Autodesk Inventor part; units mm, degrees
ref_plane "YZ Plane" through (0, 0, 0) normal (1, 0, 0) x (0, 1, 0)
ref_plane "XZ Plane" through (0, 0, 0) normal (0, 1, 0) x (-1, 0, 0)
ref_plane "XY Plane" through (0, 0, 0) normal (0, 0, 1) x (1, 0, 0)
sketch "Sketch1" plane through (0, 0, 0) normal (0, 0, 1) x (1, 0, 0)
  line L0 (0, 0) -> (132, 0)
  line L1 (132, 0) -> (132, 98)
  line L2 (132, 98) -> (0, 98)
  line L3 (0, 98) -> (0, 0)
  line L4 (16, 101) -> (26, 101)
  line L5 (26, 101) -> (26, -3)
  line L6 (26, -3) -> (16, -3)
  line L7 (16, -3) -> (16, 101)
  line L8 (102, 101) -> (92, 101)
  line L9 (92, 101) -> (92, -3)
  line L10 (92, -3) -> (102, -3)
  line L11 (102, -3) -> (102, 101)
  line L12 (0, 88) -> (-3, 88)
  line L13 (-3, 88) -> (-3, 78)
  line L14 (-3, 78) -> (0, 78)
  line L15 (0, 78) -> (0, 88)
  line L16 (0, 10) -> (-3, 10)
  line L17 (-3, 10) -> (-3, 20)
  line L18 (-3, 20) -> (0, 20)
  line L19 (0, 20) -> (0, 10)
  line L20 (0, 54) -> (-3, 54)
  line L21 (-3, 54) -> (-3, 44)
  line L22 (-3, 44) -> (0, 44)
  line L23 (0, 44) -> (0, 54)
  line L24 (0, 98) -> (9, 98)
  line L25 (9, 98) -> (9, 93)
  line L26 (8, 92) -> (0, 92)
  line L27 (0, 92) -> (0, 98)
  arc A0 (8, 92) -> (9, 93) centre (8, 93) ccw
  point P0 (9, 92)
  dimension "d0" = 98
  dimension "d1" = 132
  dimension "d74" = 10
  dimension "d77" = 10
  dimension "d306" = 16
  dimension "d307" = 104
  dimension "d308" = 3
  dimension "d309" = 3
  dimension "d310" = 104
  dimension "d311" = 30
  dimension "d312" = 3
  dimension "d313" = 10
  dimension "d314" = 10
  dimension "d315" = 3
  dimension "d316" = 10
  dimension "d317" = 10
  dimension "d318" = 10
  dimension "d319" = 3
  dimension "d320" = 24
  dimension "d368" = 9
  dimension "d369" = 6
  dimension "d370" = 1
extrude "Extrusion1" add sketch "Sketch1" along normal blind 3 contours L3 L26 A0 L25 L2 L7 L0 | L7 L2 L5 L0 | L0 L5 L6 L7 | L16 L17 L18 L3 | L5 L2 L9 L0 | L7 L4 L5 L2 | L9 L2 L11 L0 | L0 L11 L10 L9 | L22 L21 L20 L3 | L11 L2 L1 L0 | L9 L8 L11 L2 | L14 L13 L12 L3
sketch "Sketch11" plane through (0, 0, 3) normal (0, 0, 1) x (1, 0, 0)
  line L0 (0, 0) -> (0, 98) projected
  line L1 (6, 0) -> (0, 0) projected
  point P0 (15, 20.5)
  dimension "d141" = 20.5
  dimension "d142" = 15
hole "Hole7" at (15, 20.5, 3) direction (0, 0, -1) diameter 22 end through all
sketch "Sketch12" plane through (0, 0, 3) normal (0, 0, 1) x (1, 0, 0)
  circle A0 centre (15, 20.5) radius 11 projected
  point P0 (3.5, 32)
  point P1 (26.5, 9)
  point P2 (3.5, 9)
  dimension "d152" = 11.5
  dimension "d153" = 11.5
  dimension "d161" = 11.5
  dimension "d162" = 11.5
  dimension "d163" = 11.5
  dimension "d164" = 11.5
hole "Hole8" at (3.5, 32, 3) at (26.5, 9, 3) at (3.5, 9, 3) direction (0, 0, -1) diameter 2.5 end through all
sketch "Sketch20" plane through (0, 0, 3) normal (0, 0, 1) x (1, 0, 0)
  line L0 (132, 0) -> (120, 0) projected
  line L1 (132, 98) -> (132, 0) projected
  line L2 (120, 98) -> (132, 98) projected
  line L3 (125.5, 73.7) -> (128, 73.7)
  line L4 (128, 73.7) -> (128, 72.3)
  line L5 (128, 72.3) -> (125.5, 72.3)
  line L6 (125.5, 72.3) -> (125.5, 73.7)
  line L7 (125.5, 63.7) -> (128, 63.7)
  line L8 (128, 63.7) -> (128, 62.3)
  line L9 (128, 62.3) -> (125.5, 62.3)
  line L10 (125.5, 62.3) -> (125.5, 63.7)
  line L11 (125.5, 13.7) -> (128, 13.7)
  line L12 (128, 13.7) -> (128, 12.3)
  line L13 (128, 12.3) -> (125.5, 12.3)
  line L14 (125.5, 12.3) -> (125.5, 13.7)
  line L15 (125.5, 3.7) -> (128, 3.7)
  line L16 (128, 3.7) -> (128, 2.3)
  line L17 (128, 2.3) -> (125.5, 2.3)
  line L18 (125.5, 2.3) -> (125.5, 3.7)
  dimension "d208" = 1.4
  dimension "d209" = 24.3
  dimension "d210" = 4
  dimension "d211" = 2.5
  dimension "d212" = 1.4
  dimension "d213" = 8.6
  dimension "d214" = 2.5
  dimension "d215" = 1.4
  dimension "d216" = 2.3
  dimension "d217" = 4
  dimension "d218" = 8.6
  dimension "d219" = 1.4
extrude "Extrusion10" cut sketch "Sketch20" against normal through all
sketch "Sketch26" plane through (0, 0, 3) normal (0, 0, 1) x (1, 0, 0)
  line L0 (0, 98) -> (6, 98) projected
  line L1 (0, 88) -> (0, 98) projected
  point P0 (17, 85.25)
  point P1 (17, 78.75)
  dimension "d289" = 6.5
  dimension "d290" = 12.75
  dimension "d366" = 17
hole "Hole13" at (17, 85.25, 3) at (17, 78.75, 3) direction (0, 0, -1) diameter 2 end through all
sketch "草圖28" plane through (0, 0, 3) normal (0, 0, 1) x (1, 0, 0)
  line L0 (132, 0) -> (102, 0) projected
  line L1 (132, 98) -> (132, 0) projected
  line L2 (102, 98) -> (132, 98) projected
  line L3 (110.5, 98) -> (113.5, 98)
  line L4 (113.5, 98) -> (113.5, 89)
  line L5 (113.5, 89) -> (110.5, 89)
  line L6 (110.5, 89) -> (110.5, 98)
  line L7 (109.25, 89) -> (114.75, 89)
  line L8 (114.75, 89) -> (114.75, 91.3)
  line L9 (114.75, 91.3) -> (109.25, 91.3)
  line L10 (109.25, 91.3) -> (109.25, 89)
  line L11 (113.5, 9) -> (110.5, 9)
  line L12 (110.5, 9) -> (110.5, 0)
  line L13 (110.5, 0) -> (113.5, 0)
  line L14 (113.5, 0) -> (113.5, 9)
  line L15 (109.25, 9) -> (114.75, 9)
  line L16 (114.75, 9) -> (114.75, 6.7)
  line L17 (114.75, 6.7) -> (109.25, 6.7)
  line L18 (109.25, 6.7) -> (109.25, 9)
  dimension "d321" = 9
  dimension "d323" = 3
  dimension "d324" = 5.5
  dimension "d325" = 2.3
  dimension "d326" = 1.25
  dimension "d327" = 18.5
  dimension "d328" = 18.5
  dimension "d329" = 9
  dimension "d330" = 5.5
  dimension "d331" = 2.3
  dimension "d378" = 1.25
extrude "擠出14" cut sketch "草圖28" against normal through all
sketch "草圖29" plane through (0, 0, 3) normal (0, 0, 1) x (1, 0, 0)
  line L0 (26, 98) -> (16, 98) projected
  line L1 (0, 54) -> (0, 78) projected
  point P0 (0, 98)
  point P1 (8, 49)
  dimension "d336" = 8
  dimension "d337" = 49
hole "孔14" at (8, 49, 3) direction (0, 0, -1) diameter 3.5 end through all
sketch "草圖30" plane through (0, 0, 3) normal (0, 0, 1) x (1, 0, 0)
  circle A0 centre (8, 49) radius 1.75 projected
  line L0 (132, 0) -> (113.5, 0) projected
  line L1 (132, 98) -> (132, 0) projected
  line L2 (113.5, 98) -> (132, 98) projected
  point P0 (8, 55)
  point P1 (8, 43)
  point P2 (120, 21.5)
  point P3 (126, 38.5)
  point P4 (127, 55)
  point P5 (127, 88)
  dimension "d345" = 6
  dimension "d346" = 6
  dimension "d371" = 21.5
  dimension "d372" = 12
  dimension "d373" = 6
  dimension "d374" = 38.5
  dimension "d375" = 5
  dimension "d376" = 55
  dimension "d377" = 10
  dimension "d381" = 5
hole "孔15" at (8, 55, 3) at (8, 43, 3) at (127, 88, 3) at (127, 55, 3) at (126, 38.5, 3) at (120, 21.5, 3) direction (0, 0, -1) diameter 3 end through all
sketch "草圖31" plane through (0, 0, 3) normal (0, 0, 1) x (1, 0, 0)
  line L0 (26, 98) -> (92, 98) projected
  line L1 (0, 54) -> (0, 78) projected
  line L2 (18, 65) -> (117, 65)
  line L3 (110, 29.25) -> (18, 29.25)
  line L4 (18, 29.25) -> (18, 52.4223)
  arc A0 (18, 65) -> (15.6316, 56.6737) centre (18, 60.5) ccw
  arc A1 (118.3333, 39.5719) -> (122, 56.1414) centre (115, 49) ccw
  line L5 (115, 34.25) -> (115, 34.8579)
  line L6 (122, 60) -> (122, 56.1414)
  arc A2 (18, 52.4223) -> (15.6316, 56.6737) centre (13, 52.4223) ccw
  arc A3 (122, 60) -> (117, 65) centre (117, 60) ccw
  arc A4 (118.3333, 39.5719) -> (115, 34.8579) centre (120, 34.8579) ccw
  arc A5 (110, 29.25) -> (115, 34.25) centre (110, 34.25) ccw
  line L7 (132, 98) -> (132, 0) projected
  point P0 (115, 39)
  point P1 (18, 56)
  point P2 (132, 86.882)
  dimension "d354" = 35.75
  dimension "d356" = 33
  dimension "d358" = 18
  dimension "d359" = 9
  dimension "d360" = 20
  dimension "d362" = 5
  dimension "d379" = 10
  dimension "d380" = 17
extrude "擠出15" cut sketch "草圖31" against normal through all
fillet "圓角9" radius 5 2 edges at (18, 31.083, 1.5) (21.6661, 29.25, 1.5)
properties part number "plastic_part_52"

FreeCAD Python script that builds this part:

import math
import FreeCAD as App
import Part
import Sketcher

V = App.Vector


def edges_at(feature, points):
    """Names of the edges that pass closest to the given points."""
    edges = feature.Shape.Edges
    near = lambda p: min(range(len(edges)), key=lambda i: edges[i].distToShape(Part.Vertex(*p))[0])
    return sorted({f"Edge{near(p) + 1}" for p in points})

doc = App.newDocument("Part")
body = doc.addObject("PartDesign::Body", "Body")

# Sketch on XY plane
sketch1 = body.newObject("Sketcher::SketchObject", "Sketch")
sketch1.AttachmentSupport = (doc.getObject("XY_Plane"), [""])
sketch1.MapMode = "FlatFace"
sketch1.addGeometry([
    Part.LineSegment(V(0, 10, 0), V(0, 0, 0)),  # 0
    Part.LineSegment(V(0, 0, 0), V(16, 0, 0)),  # 1
    Part.LineSegment(V(16, 0, 0), V(16, -3, 0)),  # 2
    Part.LineSegment(V(16, -3, 0), V(26, -3, 0)),  # 3
    Part.LineSegment(V(26, -3, 0), V(26, 0, 0)),  # 4
    Part.LineSegment(V(26, 0, 0), V(92, 0, 0)),  # 5
    Part.LineSegment(V(92, 0, 0), V(92, -3, 0)),  # 6
    Part.LineSegment(V(92, -3, 0), V(102, -3, 0)),  # 7
    Part.LineSegment(V(102, -3, 0), V(102, 0, 0)),  # 8
    Part.LineSegment(V(102, 0, 0), V(132, 0, 0)),  # 9
    Part.LineSegment(V(132, 0, 0), V(132, 98, 0)),  # 10
    Part.LineSegment(V(132, 98, 0), V(102, 98, 0)),  # 11
    Part.LineSegment(V(102, 98, 0), V(102, 101, 0)),  # 12
    Part.LineSegment(V(102, 101, 0), V(92, 101, 0)),  # 13
    Part.LineSegment(V(92, 101, 0), V(92, 98, 0)),  # 14
    Part.LineSegment(V(92, 98, 0), V(26, 98, 0)),  # 15
    Part.LineSegment(V(26, 98, 0), V(26, 101, 0)),  # 16
    Part.LineSegment(V(26, 101, 0), V(16, 101, 0)),  # 17
    Part.LineSegment(V(16, 101, 0), V(16, 98, 0)),  # 18
    Part.LineSegment(V(16, 98, 0), V(9, 98, 0)),  # 19
    Part.LineSegment(V(9, 98, 0), V(9, 93, 0)),  # 20
    Part.ArcOfCircle(Part.Circle(V(8, 93, 0), V(0, 0, 1), 1), math.radians(-90), math.radians(0)),  # 21
    Part.LineSegment(V(8, 92, 0), V(0, 92, 0)),  # 22
    Part.LineSegment(V(0, 92, 0), V(0, 88, 0)),  # 23
    Part.LineSegment(V(0, 88, 0), V(-3, 88, 0)),  # 24
    Part.LineSegment(V(-3, 88, 0), V(-3, 78, 0)),  # 25
    Part.LineSegment(V(-3, 78, 0), V(0, 78, 0)),  # 26
    Part.LineSegment(V(0, 78, 0), V(0, 54, 0)),  # 27
    Part.LineSegment(V(0, 54, 0), V(-3, 54, 0)),  # 28
    Part.LineSegment(V(-3, 54, 0), V(-3, 44, 0)),  # 29
    Part.LineSegment(V(-3, 44, 0), V(0, 44, 0)),  # 30
    Part.LineSegment(V(0, 44, 0), V(0, 20, 0)),  # 31
    Part.LineSegment(V(0, 20, 0), V(-3, 20, 0)),  # 32
    Part.LineSegment(V(-3, 20, 0), V(-3, 10, 0)),  # 33
    Part.LineSegment(V(-3, 10, 0), V(0, 10, 0)),  # 34
], False)
sketch1.addConstraint([
    Sketcher.Constraint("Coincident", 0, 2, 1, 1),
    Sketcher.Constraint("Coincident", 1, 2, 2, 1),
    Sketcher.Constraint("Coincident", 2, 2, 3, 1),
    Sketcher.Constraint("Coincident", 3, 2, 4, 1),
    Sketcher.Constraint("Coincident", 4, 2, 5, 1),
    Sketcher.Constraint("Coincident", 5, 2, 6, 1),
    Sketcher.Constraint("Coincident", 6, 2, 7, 1),
    Sketcher.Constraint("Coincident", 7, 2, 8, 1),
    Sketcher.Constraint("Coincident", 8, 2, 9, 1),
    Sketcher.Constraint("Coincident", 9, 2, 10, 1),
    Sketcher.Constraint("Coincident", 10, 2, 11, 1),
    Sketcher.Constraint("Coincident", 11, 2, 12, 1),
    Sketcher.Constraint("Coincident", 12, 2, 13, 1),
    Sketcher.Constraint("Coincident", 13, 2, 14, 1),
    Sketcher.Constraint("Coincident", 14, 2, 15, 1),
    Sketcher.Constraint("Coincident", 15, 2, 16, 1),
    Sketcher.Constraint("Coincident", 16, 2, 17, 1),
    Sketcher.Constraint("Coincident", 17, 2, 18, 1),
    Sketcher.Constraint("Coincident", 18, 2, 19, 1),
    Sketcher.Constraint("Coincident", 19, 2, 20, 1),
    Sketcher.Constraint("Tangent", 20, 2, 21, 2),
    Sketcher.Constraint("Tangent", 21, 1, 22, 1),
    Sketcher.Constraint("Coincident", 22, 2, 23, 1),
    Sketcher.Constraint("Coincident", 23, 2, 24, 1),
    Sketcher.Constraint("Coincident", 24, 2, 25, 1),
    Sketcher.Constraint("Coincident", 25, 2, 26, 1),
    Sketcher.Constraint("Coincident", 26, 2, 27, 1),
    Sketcher.Constraint("Coincident", 27, 2, 28, 1),
    Sketcher.Constraint("Coincident", 28, 2, 29, 1),
    Sketcher.Constraint("Coincident", 29, 2, 30, 1),
    Sketcher.Constraint("Coincident", 30, 2, 31, 1),
    Sketcher.Constraint("Coincident", 31, 2, 32, 1),
    Sketcher.Constraint("Coincident", 32, 2, 33, 1),
    Sketcher.Constraint("Coincident", 33, 2, 34, 1),
    Sketcher.Constraint("Coincident", 34, 2, 0, 1),
    Sketcher.Constraint("Vertical", 0),
    Sketcher.Constraint("Horizontal", 1),
    Sketcher.Constraint("Vertical", 2),
    Sketcher.Constraint("Horizontal", 3),
    Sketcher.Constraint("Vertical", 4),
    Sketcher.Constraint("Horizontal", 5),
    Sketcher.Constraint("Vertical", 6),
    Sketcher.Constraint("Horizontal", 7),
    Sketcher.Constraint("Vertical", 8),
    Sketcher.Constraint("Horizontal", 9),
    Sketcher.Constraint("Vertical", 10),
    Sketcher.Constraint("Horizontal", 11),
    Sketcher.Constraint("Vertical", 12),
    Sketcher.Constraint("Horizontal", 13),
    Sketcher.Constraint("Vertical", 14),
    Sketcher.Constraint("Horizontal", 15),
    Sketcher.Constraint("Vertical", 16),
    Sketcher.Constraint("Horizontal", 17),
    Sketcher.Constraint("Vertical", 18),
    Sketcher.Constraint("Horizontal", 19),
    Sketcher.Constraint("Vertical", 20),
    Sketcher.Constraint("Horizontal", 22),
    Sketcher.Constraint("Vertical", 23),
    Sketcher.Constraint("Horizontal", 24),
    Sketcher.Constraint("Vertical", 25),
    Sketcher.Constraint("Horizontal", 26),
    Sketcher.Constraint("Vertical", 27),
    Sketcher.Constraint("Horizontal", 28),
    Sketcher.Constraint("Vertical", 29),
    Sketcher.Constraint("Horizontal", 30),
    Sketcher.Constraint("Vertical", 31),
    Sketcher.Constraint("Horizontal", 32),
    Sketcher.Constraint("Vertical", 33),
    Sketcher.Constraint("Horizontal", 34),
    Sketcher.Constraint("Coincident", 0, 2, -1, 1),
    Sketcher.Constraint("PointOnObject", 4, 2, -1),
    Sketcher.Constraint("PointOnObject", 8, 2, -1),
    Sketcher.Constraint("PointOnObject", 22, 2, -2),
    Sketcher.Constraint("PointOnObject", 26, 2, -2),
    Sketcher.Constraint("PointOnObject", 30, 2, -2),
    Sketcher.Constraint("Horizontal", 3, 2, 6, 2),
    Sketcher.Constraint("Horizontal", 11, 2, 14, 2),
    Sketcher.Constraint("Horizontal", 13, 2, 16, 2),
    Sketcher.Constraint("Horizontal", 15, 2, 18, 2),
    Sketcher.Constraint("Vertical", 8, 2, 11, 2),
    Sketcher.Constraint("Vertical", 6, 2, 13, 2),
    Sketcher.Constraint("Vertical", 4, 2, 15, 2),
    Sketcher.Constraint("Vertical", 2, 2, 17, 2),
    Sketcher.Constraint("Vertical", 25, 2, 28, 2),
    Sketcher.Constraint("Vertical", 29, 2, 32, 2),
    Sketcher.Constraint("Equal", 3, 7),
    Sketcher.Constraint("Equal", 17, 0),
    Sketcher.Constraint("Equal", 34, 2),
    Sketcher.Constraint("Equal", 8, 12),
    Sketcher.Constraint("Equal", 0, 25),
    Sketcher.Constraint("Equal", 25, 29),
    Sketcher.Constraint("Equal", 27, 31),
    Sketcher.Constraint("Equal", 29, 33),
    Sketcher.Constraint("Radius", 21, 1.0),
    Sketcher.Constraint("DistanceX", 1, 1, 1, 2, 16.0),
    Sketcher.Constraint("DistanceX", 3, 1, 3, 2, 10.0),
    Sketcher.Constraint("DistanceX", 9, 1, 9, 2, 30.0),
    Sketcher.Constraint("DistanceX", 24, 2, 24, 1, 3.0),
    Sketcher.Constraint("DistanceY", 10, 1, 10, 2, 98.0),
    Sketcher.Constraint("DistanceY", 27, 2, 27, 1, 24.0),
    Sketcher.Constraint("DistanceX", -1, 1, 9, 2, 132.0),
    Sketcher.Constraint("DistanceX", -1, 1, 19, 2, 9.0),
    Sketcher.Constraint("DistanceY", 21, 1, 19, 2, 6.0),
])
pad1 = body.newObject("PartDesign::Pad", "Pad")
pad1.Profile = sketch1
pad1.Length = 3

# Sketch on XY plane
sketch2 = body.newObject("Sketcher::SketchObject", "Sketch001")
sketch2.AttachmentSupport = (doc.getObject("XY_Plane"), [""])
sketch2.MapMode = "FlatFace"
sketch2.AttachmentOffset = App.Placement(V(0, 0, 3), App.Rotation())
sketch2.addGeometry(Part.Circle(V(15, 20, 0), V(0, 0, 1), 11), False)
sketch2.addConstraint([
    Sketcher.Constraint("Diameter", 0, 22.0),
    Sketcher.Constraint("DistanceX", -1, 1, 0, 3, 15.0),
    Sketcher.Constraint("DistanceY", -1, 1, 0, 3, 20.5),
])
doc.recompute()
hole = body.newObject("PartDesign::Hole", "Hole")
hole.Profile = sketch2
hole.ThreadType = "None"
hole.Diameter = 22
hole.DepthType = "ThroughAll"

# Sketch on XY plane
sketch3 = body.newObject("Sketcher::SketchObject", "Sketch002")
sketch3.AttachmentSupport = (doc.getObject("XY_Plane"), [""])
sketch3.MapMode = "FlatFace"
sketch3.AttachmentOffset = App.Placement(V(0, 0, 3), App.Rotation())
sketch3.addGeometry([
    Part.Circle(V(3.5, 32, 0), V(0, 0, 1), 1.2),
    Part.Circle(V(26.5, 9, 0), V(0, 0, 1), 1.2),
    Part.Circle(V(3.5, 9, 0), V(0, 0, 1), 1.2),
], False)
sketch3.addConstraint([
    Sketcher.Constraint("Equal", 0, 1),
    Sketcher.Constraint("Equal", 1, 2),
    Sketcher.Constraint("Horizontal", 1, 3, 2, 3),
    Sketcher.Constraint("Vertical", 0, 3, 2, 3),
    Sketcher.Constraint("Diameter", 0, 2.5),
    Sketcher.Constraint("DistanceY", -1, 1, 0, 3, 32.0),
    Sketcher.Constraint("DistanceY", -1, 1, 1, 3, 9.0),
    Sketcher.Constraint("DistanceX", 0, 3, 1, 3, 23.0),
    Sketcher.Constraint("DistanceX", -1, 1, 0, 3, 3.5),
])
doc.recompute()
hole2 = body.newObject("PartDesign::Hole", "Hole001")
hole2.Profile = sketch3
hole2.ThreadType = "None"
hole2.Diameter = 2.5
hole2.DepthType = "ThroughAll"

# Sketch on XY plane
sketch4 = body.newObject("Sketcher::SketchObject", "Sketch003")
sketch4.AttachmentSupport = (doc.getObject("XY_Plane"), [""])
sketch4.MapMode = "FlatFace"
sketch4.AttachmentOffset = App.Placement(V(0, 0, 3), App.Rotation())
sketch4.addGeometry([
    Part.LineSegment(V(128, 73.7, 0), V(125.5, 73.7, 0)),  # 0
    Part.LineSegment(V(125.5, 73.7, 0), V(125.5, 72.3, 0)),  # 1
    Part.LineSegment(V(125.5, 72.3, 0), V(128, 72.3, 0)),  # 2
    Part.LineSegment(V(128, 72.3, 0), V(128, 73.7, 0)),  # 3
    Part.LineSegment(V(128, 63.7, 0), V(125.5, 63.7, 0)),  # 4
    Part.LineSegment(V(125.5, 63.7, 0), V(125.5, 62.3, 0)),  # 5
    Part.LineSegment(V(125.5, 62.3, 0), V(128, 62.3, 0)),  # 6
    Part.LineSegment(V(128, 62.3, 0), V(128, 63.7, 0)),  # 7
    Part.LineSegment(V(128, 13.7, 0), V(125.5, 13.7, 0)),  # 8
    Part.LineSegment(V(125.5, 13.7, 0), V(125.5, 12.3, 0)),  # 9
    Part.LineSegment(V(125.5, 12.3, 0), V(128, 12.3, 0)),  # 10
    Part.LineSegment(V(128, 12.3, 0), V(128, 13.7, 0)),  # 11
    Part.LineSegment(V(128, 3.7, 0), V(125.5, 3.7, 0)),  # 12
    Part.LineSegment(V(125.5, 3.7, 0), V(125.5, 2.3, 0)),  # 13
    Part.LineSegment(V(125.5, 2.3, 0), V(128, 2.3, 0)),  # 14
    Part.LineSegment(V(128, 2.3, 0), V(128, 3.7, 0)),  # 15
], False)
sketch4.addConstraint([
    Sketcher.Constraint("Coincident", 0, 2, 1, 1),
    Sketcher.Constraint("Coincident", 1, 2, 2, 1),
    Sketcher.Constraint("Coincident", 2, 2, 3, 1),
    Sketcher.Constraint("Coincident", 3, 2, 0, 1),
    Sketcher.Constraint("Coincident", 4, 2, 5, 1),
    Sketcher.Constraint("Coincident", 5, 2, 6, 1),
    Sketcher.Constraint("Coincident", 6, 2, 7, 1),
    Sketcher.Constraint("Coincident", 7, 2, 4, 1),
    Sketcher.Constraint("Coincident", 8, 2, 9, 1),
    Sketcher.Constraint("Coincident", 9, 2, 10, 1),
    Sketcher.Constraint("Coincident", 10, 2, 11, 1),
    Sketcher.Constraint("Coincident", 11, 2, 8, 1),
    Sketcher.Constraint("Coincident", 12, 2, 13, 1),
    Sketcher.Constraint("Coincident", 13, 2, 14, 1),
    Sketcher.Constraint("Coincident", 14, 2, 15, 1),
    Sketcher.Constraint("Coincident", 15, 2, 12, 1),
    Sketcher.Constraint("Horizontal", 0),
    Sketcher.Constraint("Vertical", 1),
    Sketcher.Constraint("Horizontal", 2),
    Sketcher.Constraint("Vertical", 3),
    Sketcher.Constraint("Horizontal", 4),
    Sketcher.Constraint("Vertical", 5),
    Sketcher.Constraint("Horizontal", 6),
    Sketcher.Constraint("Vertical", 7),
    Sketcher.Constraint("Horizontal", 8),
    Sketcher.Constraint("Vertical", 9),
    Sketcher.Constraint("Horizontal", 10),
    Sketcher.Constraint("Vertical", 11),
    Sketcher.Constraint("Horizontal", 12),
    Sketcher.Constraint("Vertical", 13),
    Sketcher.Constraint("Horizontal", 14),
    Sketcher.Constraint("Vertical", 15),
    Sketcher.Constraint("Vertical", 1, 2, 4, 2),
    Sketcher.Constraint("Vertical", 3, 2, 6, 2),
    Sketcher.Constraint("Vertical", 5, 2, 8, 2),
    Sketcher.Constraint("Vertical", 7, 2, 10, 2),
    Sketcher.Constraint("Vertical", 9, 2, 12, 2),
    Sketcher.Constraint("Vertical", 11, 2, 14, 2),
    Sketcher.Constraint("Equal", 3, 5),
    Sketcher.Constraint("Equal", 7, 9),
    Sketcher.Constraint("Equal", 11, 13),
    Sketcher.Constraint("DistanceX", 0, 2, 0, 1, 2.5),
    Sketcher.Constraint("DistanceY", 1, 2, 1, 1, 1.4),
    Sketcher.Constraint("DistanceY", -1, 1, 13, 2, 2.3),
    Sketcher.Constraint("DistanceY", 4, 2, 1, 2, 8.6),
    Sketcher.Constraint("DistanceY", 12, 2, 9, 2, 8.6),
    Sketcher.Constraint("DistanceX", -1, 1, 2, 2, 128.0),
    Sketcher.Constraint("DistanceY", 8, 2, 4, 2, 50.0),
])
pocket1 = body.newObject("PartDesign::Pocket", "Pocket")
pocket1.Profile = sketch4
pocket1.Type = "ThroughAll"

# Sketch on XY plane
sketch5 = body.newObject("Sketcher::SketchObject", "Sketch004")
sketch5.AttachmentSupport = (doc.getObject("XY_Plane"), [""])
sketch5.MapMode = "FlatFace"
sketch5.AttachmentOffset = App.Placement(V(0, 0, 3), App.Rotation())
sketch5.addGeometry([
    Part.Circle(V(17, 85.2, 0), V(0, 0, 1), 1),
    Part.Circle(V(17, 78.8, 0), V(0, 0, 1), 1),
], False)
sketch5.addConstraint([
    Sketcher.Constraint("Equal", 0, 1),
    Sketcher.Constraint("Vertical", 0, 3, 1, 3),
    Sketcher.Constraint("Diameter", 0, 2.0),
    Sketcher.Constraint("DistanceX", -1, 1, 0, 3, 17.0),
    Sketcher.Constraint("DistanceY", 1, 3, 0, 3, 6.5),
    Sketcher.Constraint("DistanceY", -1, 1, 0, 3, 85.25),
])
doc.recompute()
hole3 = body.newObject("PartDesign::Hole", "Hole002")
hole3.Profile = sketch5
hole3.ThreadType = "None"
hole3.Diameter = 2
hole3.DepthType = "ThroughAll"

# Sketch on XY plane
sketch6 = body.newObject("Sketcher::SketchObject", "Sketch005")
sketch6.AttachmentSupport = (doc.getObject("XY_Plane"), [""])
sketch6.MapMode = "FlatFace"
sketch6.AttachmentOffset = App.Placement(V(0, 0, 3), App.Rotation())
sketch6.addGeometry([
    Part.LineSegment(V(110.5, 0, 0), V(113.5, 0, 0)),  # 0
    Part.LineSegment(V(113.5, 0, 0), V(113.5, 6.7, 0)),  # 1
    Part.LineSegment(V(113.5, 6.7, 0), V(114.8, 6.7, 0)),  # 2
    Part.LineSegment(V(114.8, 6.7, 0), V(114.8, 9, 0)),  # 3
    Part.LineSegment(V(114.8, 9, 0), V(109.2, 9, 0)),  # 4
    Part.LineSegment(V(109.2, 9, 0), V(109.2, 6.7, 0)),  # 5
    Part.LineSegment(V(109.2, 6.7, 0), V(110.5, 6.7, 0)),  # 6
    Part.LineSegment(V(110.5, 6.7, 0), V(110.5, 0, 0)),  # 7
    Part.LineSegment(V(113.5, 91.3, 0), V(113.5, 98, 0)),  # 8
    Part.LineSegment(V(113.5, 98, 0), V(110.5, 98, 0)),  # 9
    Part.LineSegment(V(110.5, 98, 0), V(110.5, 91.3, 0)),  # 10
    Part.LineSegment(V(110.5, 91.3, 0), V(109.2, 91.3, 0)),  # 11
    Part.LineSegment(V(109.2, 91.3, 0), V(109.2, 89, 0)),  # 12
    Part.LineSegment(V(109.2, 89, 0), V(114.8, 89, 0)),  # 13
    Part.LineSegment(V(114.8, 89, 0), V(114.8, 91.3, 0)),  # 14
    Part.LineSegment(V(114.8, 91.3, 0), V(113.5, 91.3, 0)),  # 15
], False)
sketch6.addConstraint([
    Sketcher.Constraint("Coincident", 0, 2, 1, 1),
    Sketcher.Constraint("Coincident", 1, 2, 2, 1),
    Sketcher.Constraint("Coincident", 2, 2, 3, 1),
    Sketcher.Constraint("Coincident", 3, 2, 4, 1),
    Sketcher.Constraint("Coincident", 4, 2, 5, 1),
    Sketcher.Constraint("Coincident", 5, 2, 6, 1),
    Sketcher.Constraint("Coincident", 6, 2, 7, 1),
    Sketcher.Constraint("Coincident", 7, 2, 0, 1),
    Sketcher.Constraint("Coincident", 8, 2, 9, 1),
    Sketcher.Constraint("Coincident", 9, 2, 10, 1),
    Sketcher.Constraint("Coincident", 10, 2, 11, 1),
    Sketcher.Constraint("Coincident", 11, 2, 12, 1),
    Sketcher.Constraint("Coincident", 12, 2, 13, 1),
    Sketcher.Constraint("Coincident", 13, 2, 14, 1),
    Sketcher.Constraint("Coincident", 14, 2, 15, 1),
    Sketcher.Constraint("Coincident", 15, 2, 8, 1),
    Sketcher.Constraint("Horizontal", 0),
    Sketcher.Constraint("Vertical", 1),
    Sketcher.Constraint("Horizontal", 2),
    Sketcher.Constraint("Vertical", 3),
    Sketcher.Constraint("Horizontal", 4),
    Sketcher.Constraint("Vertical", 5),
    Sketcher.Constraint("Horizontal", 6),
    Sketcher.Constraint("Vertical", 7),
    Sketcher.Constraint("Vertical", 8),
    Sketcher.Constraint("Horizontal", 9),
    Sketcher.Constraint("Vertical", 10),
    Sketcher.Constraint("Horizontal", 11),
    Sketcher.Constraint("Vertical", 12),
    Sketcher.Constraint("Horizontal", 13),
    Sketcher.Constraint("Vertical", 14),
    Sketcher.Constraint("Horizontal", 15),
    Sketcher.Constraint("PointOnObject", 0, 2, -1),
    Sketcher.Constraint("Horizontal", 2, 2, 5, 2),
    Sketcher.Constraint("Horizontal", 11, 2, 14, 2),
    Sketcher.Constraint("Vertical", 1, 2, 8, 2),
    Sketcher.Constraint("Vertical", 7, 2, 9, 2),
    Sketcher.Constraint("Vertical", 5, 2, 11, 2),
    Sketcher.Constraint("Vertical", 3, 2, 13, 2),
    Sketcher.Constraint("Equal", 2, 6),
    Sketcher.Constraint("Equal", 7, 8),
    Sketcher.Constraint("Equal", 5, 12),
    Sketcher.Constraint("DistanceX", 0, 1, 0, 2, 3.0),
    Sketcher.Constraint("DistanceX", 4, 2, 4, 1, 5.5),
    Sketcher.Constraint("DistanceY", 3, 1, 3, 2, 2.3),
    Sketcher.Constraint("DistanceY", -1, 1, 3, 2, 9.0),
    Sketcher.Constraint("DistanceY", -1, 1, 8, 2, 98.0),
    Sketcher.Constraint("DistanceX", -1, 1, 0, 2, 113.5),
])
pocket2 = body.newObject("PartDesign::Pocket", "Pocket001")
pocket2.Profile = sketch6
pocket2.Type = "ThroughAll"

# Sketch on XY plane
sketch7 = body.newObject("Sketcher::SketchObject", "Sketch006")
sketch7.AttachmentSupport = (doc.getObject("XY_Plane"), [""])
sketch7.MapMode = "FlatFace"
sketch7.AttachmentOffset = App.Placement(V(0, 0, 3), App.Rotation())
sketch7.addGeometry(Part.Circle(V(8, 49, 0), V(0, 0, 1), 1.8), False)
sketch7.addConstraint([
    Sketcher.Constraint("Diameter", 0, 3.5),
    Sketcher.Constraint("DistanceX", -1, 1, 0, 3, 8.0),
    Sketcher.Constraint("DistanceY", -1, 1, 0, 3, 49.0),
])
doc.recompute()
hole4 = body.newObject("PartDesign::Hole", "Hole003")
hole4.Profile = sketch7
hole4.ThreadType = "None"
hole4.Diameter = 3.5
hole4.DepthType = "ThroughAll"

# Sketch on XY plane
sketch8 = body.newObject("Sketcher::SketchObject", "Sketch007")
sketch8.AttachmentSupport = (doc.getObject("XY_Plane"), [""])
sketch8.MapMode = "FlatFace"
sketch8.AttachmentOffset = App.Placement(V(0, 0, 3), App.Rotation())
sketch8.addGeometry([
    Part.Circle(V(8, 55, 0), V(0, 0, 1), 1.5),  # 0
    Part.Circle(V(8, 43, 0), V(0, 0, 1), 1.5),  # 1
    Part.Circle(V(127, 88, 0), V(0, 0, 1), 1.5),  # 2
    Part.Circle(V(127, 55, 0), V(0, 0, 1), 1.5),  # 3
    Part.Circle(V(126, 38.5, 0), V(0, 0, 1), 1.5),  # 4
    Part.Circle(V(120, 21.5, 0), V(0, 0, 1), 1.5),  # 5
], False)
sketch8.addConstraint([
    Sketcher.Constraint("Equal", 0, 1),
    Sketcher.Constraint("Equal", 1, 2),
    Sketcher.Constraint("Equal", 2, 3),
    Sketcher.Constraint("Equal", 3, 4),
    Sketcher.Constraint("Equal", 4, 5),
    Sketcher.Constraint("Horizontal", 0, 3, 3, 3),
    Sketcher.Constraint("Vertical", 0, 3, 1, 3),
    Sketcher.Constraint("Vertical", 2, 3, 3, 3),
    Sketcher.Constraint("Diameter", 0, 3.0),
    Sketcher.Constraint("DistanceX", -1, 1, 0, 3, 8.0),
    Sketcher.Constraint("DistanceY", -1, 1, 0, 3, 55.0),
    Sketcher.Constraint("DistanceY", -1, 1, 1, 3, 43.0),
    Sketcher.Constraint("DistanceX", -1, 1, 2, 3, 127.0),
    Sketcher.Constraint("DistanceY", -1, 1, 2, 3, 88.0),
    Sketcher.Constraint("DistanceX", -1, 1, 4, 3, 126.0),
    Sketcher.Constraint("DistanceX", -1, 1, 5, 3, 120.0),
    Sketcher.Constraint("DistanceY", 5, 3, 4, 3, 17.0),
    Sketcher.Constraint("DistanceY", -1, 1, 4, 3, 38.5),
])
doc.recompute()
hole5 = body.newObject("PartDesign::Hole", "Hole004")
hole5.Profile = sketch8
hole5.ThreadType = "None"
hole5.Diameter = 3
hole5.DepthType = "ThroughAll"

# Sketch on XY plane
sketch9 = body.newObject("Sketcher::SketchObject", "Sketch008")
sketch9.AttachmentSupport = (doc.getObject("XY_Plane"), [""])
sketch9.MapMode = "FlatFace"
sketch9.AttachmentOffset = App.Placement(V(0, 0, 3), App.Rotation())
sketch9.addGeometry([
    Part.LineSegment(V(117, 65, 0), V(18, 65, 0)),  # 0
    Part.ArcOfCircle(Part.Circle(V(18, 60.5, 0), V(0, 0, 1), 4.5), math.radians(90), math.radians(238)),  # 1
    Part.ArcOfCircle(Part.Circle(V(13, 52.4, 0), V(0, 0, 1), 5), math.radians(0), math.radians(58)),  # 2
    Part.LineSegment(V(18, 52.4, 0), V(18, 29.2, 0)),  # 3
    Part.LineSegment(V(18, 29.2, 0), V(110, 29.2, 0)),  # 4
    Part.ArcOfCircle(Part.Circle(V(110, 34.2, 0), V(0, 0, 1), 5), math.radians(-90), math.radians(0)),  # 5
    Part.LineSegment(V(115, 34.2, 0), V(115, 34.9, 0)),  # 6
    Part.ArcOfCircle(Part.Circle(V(120, 34.9, 0), V(0, 0, 1), 5), math.radians(109), math.radians(180)),  # 7
    Part.ArcOfCircle(Part.Circle(V(115, 49, 0), V(0, 0, 1), 10), math.radians(-71), math.radians(46)),  # 8
    Part.LineSegment(V(122, 56.1, 0), V(122, 60, 0)),  # 9
    Part.ArcOfCircle(Part.Circle(V(117, 60, 0), V(0, 0, 1), 5), math.radians(0), math.radians(90)),  # 10
], False)
sketch9.addConstraint([
    Sketcher.Constraint("Tangent", 0, 2, 1, 1),
    Sketcher.Constraint("Tangent", 1, 2, 2, 2),
    Sketcher.Constraint("Tangent", 2, 1, 3, 1),
    Sketcher.Constraint("Coincident", 3, 2, 4, 1),
    Sketcher.Constraint("Tangent", 4, 2, 5, 1),
    Sketcher.Constraint("Tangent", 5, 2, 6, 1),
    Sketcher.Constraint("Tangent", 6, 2, 7, 2),
    Sketcher.Constraint("Tangent", 7, 1, 8, 1),
    Sketcher.Constraint("Coincident", 8, 2, 9, 1),
    Sketcher.Constraint("Tangent", 9, 2, 10, 1),
    Sketcher.Constraint("Tangent", 10, 2, 0, 1),
    Sketcher.Constraint("Horizontal", 0),
    Sketcher.Constraint("Vertical", 3),
    Sketcher.Constraint("Horizontal", 4),
    Sketcher.Constraint("Vertical", 6),
    Sketcher.Constraint("Vertical", 9),
    Sketcher.Constraint("Equal", 2, 5),
    Sketcher.Constraint("Equal", 5, 7),
    Sketcher.Constraint("Equal", 7, 10),
    Sketcher.Constraint("Vertical", 0, 2, 2, 1),
    Sketcher.Constraint("Vertical", 8, 3, 5, 2),
    Sketcher.Constraint("Radius", 2, 5.0),
    Sketcher.Constraint("Radius", 8, 10.0),
    Sketcher.Constraint("Radius", 1, 4.5),
    Sketcher.Constraint("DistanceX", -1, 1, 1, 3, 18.0),
    Sketcher.Constraint("DistanceX", 0, 2, 0, 1, 99.0),
    Sketcher.Constraint("DistanceX", 4, 1, 4, 2, 92.0),
    Sketcher.Constraint("DistanceY", 3, 2, 0, 2, 35.75),
    Sketcher.Constraint("DistanceY", -1, 1, 8, 3, 49.0),
    Sketcher.Constraint("DistanceY", -1, 1, 10, 3, 60.0),
])
pocket3 = body.newObject("PartDesign::Pocket", "Pocket002")
pocket3.Profile = sketch9
pocket3.Type = "ThroughAll"
doc.recompute()

fillet = body.newObject("PartDesign::Fillet", "Fillet")
fillet.Base = (pocket3, edges_at(pocket3, [(18, 31.083, 1.5), (21.666, 29.25, 1.5)]))
fillet.Radius = 5

doc.recompute()
